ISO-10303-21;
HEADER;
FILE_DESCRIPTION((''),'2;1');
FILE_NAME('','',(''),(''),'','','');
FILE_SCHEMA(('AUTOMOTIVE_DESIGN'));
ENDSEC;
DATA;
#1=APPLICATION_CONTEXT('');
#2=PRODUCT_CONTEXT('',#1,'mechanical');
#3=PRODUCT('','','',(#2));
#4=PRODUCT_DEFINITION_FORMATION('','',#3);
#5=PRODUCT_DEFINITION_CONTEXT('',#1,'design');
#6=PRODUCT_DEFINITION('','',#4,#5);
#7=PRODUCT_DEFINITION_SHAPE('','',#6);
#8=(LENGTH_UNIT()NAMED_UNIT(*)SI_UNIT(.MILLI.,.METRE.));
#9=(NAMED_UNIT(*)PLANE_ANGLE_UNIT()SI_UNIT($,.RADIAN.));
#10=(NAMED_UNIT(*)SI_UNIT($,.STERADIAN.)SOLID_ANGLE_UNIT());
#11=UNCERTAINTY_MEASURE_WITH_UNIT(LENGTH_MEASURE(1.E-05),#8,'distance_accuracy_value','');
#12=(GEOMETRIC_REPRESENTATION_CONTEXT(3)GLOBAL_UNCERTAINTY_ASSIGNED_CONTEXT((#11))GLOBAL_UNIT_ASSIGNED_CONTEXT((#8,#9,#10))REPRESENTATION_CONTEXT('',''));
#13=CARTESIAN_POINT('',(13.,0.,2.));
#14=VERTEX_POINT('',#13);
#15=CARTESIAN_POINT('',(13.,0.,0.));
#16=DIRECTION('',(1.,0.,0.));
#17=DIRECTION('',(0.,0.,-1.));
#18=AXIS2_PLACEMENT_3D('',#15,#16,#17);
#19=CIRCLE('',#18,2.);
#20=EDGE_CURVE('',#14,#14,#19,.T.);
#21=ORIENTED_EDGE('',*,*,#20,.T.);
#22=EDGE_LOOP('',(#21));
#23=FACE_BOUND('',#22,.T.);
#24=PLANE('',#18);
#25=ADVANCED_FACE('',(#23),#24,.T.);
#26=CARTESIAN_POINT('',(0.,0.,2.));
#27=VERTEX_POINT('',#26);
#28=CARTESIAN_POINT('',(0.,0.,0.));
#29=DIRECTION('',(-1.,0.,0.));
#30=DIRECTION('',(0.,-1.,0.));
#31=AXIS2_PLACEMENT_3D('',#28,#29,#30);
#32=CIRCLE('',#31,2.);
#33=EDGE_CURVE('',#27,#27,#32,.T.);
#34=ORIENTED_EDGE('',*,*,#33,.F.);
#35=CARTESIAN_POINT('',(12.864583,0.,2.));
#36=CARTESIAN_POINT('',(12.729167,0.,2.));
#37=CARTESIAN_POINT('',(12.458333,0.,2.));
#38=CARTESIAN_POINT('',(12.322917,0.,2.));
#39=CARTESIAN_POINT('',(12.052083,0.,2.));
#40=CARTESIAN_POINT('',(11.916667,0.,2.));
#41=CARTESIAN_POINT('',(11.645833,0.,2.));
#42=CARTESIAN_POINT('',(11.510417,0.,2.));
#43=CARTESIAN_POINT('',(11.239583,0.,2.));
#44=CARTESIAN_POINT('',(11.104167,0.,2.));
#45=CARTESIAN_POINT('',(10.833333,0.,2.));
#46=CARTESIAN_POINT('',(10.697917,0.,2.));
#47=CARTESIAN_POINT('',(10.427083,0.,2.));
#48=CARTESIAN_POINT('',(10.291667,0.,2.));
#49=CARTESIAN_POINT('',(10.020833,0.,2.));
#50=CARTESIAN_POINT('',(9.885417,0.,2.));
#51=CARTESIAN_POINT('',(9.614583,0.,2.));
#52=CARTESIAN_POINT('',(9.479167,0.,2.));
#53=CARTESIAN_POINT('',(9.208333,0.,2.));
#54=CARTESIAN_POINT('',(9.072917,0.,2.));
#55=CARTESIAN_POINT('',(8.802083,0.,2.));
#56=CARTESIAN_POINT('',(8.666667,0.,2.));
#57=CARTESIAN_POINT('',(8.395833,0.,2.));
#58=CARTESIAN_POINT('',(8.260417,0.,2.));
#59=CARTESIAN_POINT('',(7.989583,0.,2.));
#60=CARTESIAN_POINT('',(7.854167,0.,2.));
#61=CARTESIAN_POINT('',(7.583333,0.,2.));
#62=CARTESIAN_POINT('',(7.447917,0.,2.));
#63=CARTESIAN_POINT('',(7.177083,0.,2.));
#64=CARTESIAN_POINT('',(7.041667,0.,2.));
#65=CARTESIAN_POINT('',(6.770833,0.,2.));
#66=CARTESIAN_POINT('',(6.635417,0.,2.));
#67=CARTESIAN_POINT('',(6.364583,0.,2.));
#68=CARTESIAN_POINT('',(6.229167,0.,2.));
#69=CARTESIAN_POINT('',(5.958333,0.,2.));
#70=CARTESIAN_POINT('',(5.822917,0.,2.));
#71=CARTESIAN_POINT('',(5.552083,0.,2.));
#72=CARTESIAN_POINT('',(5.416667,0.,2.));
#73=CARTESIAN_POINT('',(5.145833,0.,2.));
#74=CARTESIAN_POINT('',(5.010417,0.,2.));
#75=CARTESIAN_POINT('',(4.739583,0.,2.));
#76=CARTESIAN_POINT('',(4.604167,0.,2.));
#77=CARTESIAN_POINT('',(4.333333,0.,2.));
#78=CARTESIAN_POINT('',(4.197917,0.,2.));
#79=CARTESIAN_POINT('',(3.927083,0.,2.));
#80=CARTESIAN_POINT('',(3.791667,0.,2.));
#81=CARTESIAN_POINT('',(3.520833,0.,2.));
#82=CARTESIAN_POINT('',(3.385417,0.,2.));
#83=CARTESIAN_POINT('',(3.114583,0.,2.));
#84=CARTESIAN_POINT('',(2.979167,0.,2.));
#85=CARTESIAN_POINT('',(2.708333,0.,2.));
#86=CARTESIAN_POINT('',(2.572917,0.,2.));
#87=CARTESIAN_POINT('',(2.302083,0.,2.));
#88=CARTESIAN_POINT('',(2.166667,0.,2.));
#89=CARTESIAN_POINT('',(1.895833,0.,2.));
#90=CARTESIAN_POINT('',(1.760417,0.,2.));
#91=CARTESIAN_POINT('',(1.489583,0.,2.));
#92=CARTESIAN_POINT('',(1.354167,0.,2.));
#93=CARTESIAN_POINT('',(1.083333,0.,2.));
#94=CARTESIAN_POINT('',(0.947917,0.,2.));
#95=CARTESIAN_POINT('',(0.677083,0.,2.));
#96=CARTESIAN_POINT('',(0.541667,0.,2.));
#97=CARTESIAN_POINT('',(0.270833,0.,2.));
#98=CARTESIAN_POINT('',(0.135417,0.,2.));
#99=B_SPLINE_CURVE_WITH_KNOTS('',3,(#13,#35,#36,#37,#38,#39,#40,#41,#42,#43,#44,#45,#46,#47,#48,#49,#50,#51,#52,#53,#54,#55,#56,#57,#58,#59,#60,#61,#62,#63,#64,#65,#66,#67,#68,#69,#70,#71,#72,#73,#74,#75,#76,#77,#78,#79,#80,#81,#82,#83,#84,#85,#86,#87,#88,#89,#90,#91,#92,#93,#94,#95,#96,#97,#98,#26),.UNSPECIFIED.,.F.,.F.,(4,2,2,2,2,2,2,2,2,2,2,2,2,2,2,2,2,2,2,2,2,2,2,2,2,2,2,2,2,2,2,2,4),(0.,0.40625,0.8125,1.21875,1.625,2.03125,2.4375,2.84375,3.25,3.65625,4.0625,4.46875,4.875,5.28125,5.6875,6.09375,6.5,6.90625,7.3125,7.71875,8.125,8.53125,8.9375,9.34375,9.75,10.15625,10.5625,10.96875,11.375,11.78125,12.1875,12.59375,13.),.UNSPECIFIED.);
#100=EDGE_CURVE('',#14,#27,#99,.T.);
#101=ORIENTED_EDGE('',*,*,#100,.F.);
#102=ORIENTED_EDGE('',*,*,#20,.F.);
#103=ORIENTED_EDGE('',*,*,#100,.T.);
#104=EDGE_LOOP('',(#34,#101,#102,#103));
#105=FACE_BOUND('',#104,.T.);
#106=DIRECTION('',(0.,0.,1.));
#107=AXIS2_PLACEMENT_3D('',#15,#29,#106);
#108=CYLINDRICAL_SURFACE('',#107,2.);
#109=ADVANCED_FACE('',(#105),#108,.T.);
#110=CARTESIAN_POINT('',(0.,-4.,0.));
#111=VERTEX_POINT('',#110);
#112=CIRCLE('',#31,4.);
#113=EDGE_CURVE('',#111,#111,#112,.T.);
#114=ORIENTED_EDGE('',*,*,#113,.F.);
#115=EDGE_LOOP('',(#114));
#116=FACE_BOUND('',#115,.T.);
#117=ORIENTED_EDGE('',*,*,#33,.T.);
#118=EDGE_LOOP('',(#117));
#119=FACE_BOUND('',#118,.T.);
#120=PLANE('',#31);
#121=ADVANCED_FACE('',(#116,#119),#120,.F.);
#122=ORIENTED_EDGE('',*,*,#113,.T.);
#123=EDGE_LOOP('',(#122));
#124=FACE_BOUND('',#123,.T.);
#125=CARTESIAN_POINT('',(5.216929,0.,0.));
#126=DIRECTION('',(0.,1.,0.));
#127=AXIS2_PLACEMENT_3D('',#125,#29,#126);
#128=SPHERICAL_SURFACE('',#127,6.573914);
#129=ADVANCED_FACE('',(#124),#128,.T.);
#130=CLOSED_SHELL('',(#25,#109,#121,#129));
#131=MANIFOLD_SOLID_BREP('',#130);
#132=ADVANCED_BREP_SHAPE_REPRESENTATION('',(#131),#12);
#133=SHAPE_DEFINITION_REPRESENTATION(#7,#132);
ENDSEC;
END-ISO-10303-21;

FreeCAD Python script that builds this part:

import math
import FreeCAD as App
import Part
import Sketcher
from FreeCAD import Vector

doc = App.newDocument("Part")
body = doc.addObject("PartDesign::Body", "Body")

# Sketch on YZ plane
sketch1 = body.newObject("Sketcher::SketchObject", "Sketch")
sketch1.AttachmentSupport = (doc.getObject("YZ_Plane"), [""])
sketch1.MapMode = "FlatFace"
sketch1.addGeometry(Part.Circle(Vector(0, 0, 0), Vector(0, 0, 1), 2), False)
sketch1.addConstraint([
    Sketcher.Constraint("Coincident", 0, 3, -1, 1),
    Sketcher.Constraint("Diameter", 0, 4.0),
])
pad1 = body.newObject("PartDesign::Pad", "Pad")
pad1.Profile = sketch1
pad1.Length = 13

# Sketch on XY plane
sketch2 = body.newObject("Sketcher::SketchObject", "Sketch001")
sketch2.AttachmentSupport = (doc.getObject("XY_Plane"), [""])
sketch2.MapMode = "FlatFace"
sketch2.addGeometry([
    Part.LineSegment(Vector(0, 0, 0), Vector(0, 4, 0)),
    Part.ArcOfCircle(Part.Circle(Vector(5.2, 0, 0), Vector(0, 0, 1), 6.6), math.radians(143), math.radians(180)),
    Part.LineSegment(Vector(-1.4, 0, 0), Vector(0, 0, 0)),
], False)
sketch2.addConstraint([
    Sketcher.Constraint("Coincident", 0, 2, 1, 1),
    Sketcher.Constraint("Coincident", 1, 2, 2, 1),
    Sketcher.Constraint("Coincident", 2, 2, 0, 1),
    Sketcher.Constraint("Vertical", 0),
    Sketcher.Constraint("Horizontal", 2),
    Sketcher.Constraint("Coincident", 2, 2, -1, 1),
    Sketcher.Constraint("PointOnObject", 1, 3, -1),
    Sketcher.Constraint("DistanceY", 0, 1, 0, 2, 4.0),
    Sketcher.Constraint("Radius", 1, 6.573914),
])
revolution = body.newObject("PartDesign::Revolution", "Revolution")
revolution.Profile = sketch2
revolution.ReferenceAxis = (sketch2, ["H_Axis"])
revolution.Angle = 360

doc.recompute()
